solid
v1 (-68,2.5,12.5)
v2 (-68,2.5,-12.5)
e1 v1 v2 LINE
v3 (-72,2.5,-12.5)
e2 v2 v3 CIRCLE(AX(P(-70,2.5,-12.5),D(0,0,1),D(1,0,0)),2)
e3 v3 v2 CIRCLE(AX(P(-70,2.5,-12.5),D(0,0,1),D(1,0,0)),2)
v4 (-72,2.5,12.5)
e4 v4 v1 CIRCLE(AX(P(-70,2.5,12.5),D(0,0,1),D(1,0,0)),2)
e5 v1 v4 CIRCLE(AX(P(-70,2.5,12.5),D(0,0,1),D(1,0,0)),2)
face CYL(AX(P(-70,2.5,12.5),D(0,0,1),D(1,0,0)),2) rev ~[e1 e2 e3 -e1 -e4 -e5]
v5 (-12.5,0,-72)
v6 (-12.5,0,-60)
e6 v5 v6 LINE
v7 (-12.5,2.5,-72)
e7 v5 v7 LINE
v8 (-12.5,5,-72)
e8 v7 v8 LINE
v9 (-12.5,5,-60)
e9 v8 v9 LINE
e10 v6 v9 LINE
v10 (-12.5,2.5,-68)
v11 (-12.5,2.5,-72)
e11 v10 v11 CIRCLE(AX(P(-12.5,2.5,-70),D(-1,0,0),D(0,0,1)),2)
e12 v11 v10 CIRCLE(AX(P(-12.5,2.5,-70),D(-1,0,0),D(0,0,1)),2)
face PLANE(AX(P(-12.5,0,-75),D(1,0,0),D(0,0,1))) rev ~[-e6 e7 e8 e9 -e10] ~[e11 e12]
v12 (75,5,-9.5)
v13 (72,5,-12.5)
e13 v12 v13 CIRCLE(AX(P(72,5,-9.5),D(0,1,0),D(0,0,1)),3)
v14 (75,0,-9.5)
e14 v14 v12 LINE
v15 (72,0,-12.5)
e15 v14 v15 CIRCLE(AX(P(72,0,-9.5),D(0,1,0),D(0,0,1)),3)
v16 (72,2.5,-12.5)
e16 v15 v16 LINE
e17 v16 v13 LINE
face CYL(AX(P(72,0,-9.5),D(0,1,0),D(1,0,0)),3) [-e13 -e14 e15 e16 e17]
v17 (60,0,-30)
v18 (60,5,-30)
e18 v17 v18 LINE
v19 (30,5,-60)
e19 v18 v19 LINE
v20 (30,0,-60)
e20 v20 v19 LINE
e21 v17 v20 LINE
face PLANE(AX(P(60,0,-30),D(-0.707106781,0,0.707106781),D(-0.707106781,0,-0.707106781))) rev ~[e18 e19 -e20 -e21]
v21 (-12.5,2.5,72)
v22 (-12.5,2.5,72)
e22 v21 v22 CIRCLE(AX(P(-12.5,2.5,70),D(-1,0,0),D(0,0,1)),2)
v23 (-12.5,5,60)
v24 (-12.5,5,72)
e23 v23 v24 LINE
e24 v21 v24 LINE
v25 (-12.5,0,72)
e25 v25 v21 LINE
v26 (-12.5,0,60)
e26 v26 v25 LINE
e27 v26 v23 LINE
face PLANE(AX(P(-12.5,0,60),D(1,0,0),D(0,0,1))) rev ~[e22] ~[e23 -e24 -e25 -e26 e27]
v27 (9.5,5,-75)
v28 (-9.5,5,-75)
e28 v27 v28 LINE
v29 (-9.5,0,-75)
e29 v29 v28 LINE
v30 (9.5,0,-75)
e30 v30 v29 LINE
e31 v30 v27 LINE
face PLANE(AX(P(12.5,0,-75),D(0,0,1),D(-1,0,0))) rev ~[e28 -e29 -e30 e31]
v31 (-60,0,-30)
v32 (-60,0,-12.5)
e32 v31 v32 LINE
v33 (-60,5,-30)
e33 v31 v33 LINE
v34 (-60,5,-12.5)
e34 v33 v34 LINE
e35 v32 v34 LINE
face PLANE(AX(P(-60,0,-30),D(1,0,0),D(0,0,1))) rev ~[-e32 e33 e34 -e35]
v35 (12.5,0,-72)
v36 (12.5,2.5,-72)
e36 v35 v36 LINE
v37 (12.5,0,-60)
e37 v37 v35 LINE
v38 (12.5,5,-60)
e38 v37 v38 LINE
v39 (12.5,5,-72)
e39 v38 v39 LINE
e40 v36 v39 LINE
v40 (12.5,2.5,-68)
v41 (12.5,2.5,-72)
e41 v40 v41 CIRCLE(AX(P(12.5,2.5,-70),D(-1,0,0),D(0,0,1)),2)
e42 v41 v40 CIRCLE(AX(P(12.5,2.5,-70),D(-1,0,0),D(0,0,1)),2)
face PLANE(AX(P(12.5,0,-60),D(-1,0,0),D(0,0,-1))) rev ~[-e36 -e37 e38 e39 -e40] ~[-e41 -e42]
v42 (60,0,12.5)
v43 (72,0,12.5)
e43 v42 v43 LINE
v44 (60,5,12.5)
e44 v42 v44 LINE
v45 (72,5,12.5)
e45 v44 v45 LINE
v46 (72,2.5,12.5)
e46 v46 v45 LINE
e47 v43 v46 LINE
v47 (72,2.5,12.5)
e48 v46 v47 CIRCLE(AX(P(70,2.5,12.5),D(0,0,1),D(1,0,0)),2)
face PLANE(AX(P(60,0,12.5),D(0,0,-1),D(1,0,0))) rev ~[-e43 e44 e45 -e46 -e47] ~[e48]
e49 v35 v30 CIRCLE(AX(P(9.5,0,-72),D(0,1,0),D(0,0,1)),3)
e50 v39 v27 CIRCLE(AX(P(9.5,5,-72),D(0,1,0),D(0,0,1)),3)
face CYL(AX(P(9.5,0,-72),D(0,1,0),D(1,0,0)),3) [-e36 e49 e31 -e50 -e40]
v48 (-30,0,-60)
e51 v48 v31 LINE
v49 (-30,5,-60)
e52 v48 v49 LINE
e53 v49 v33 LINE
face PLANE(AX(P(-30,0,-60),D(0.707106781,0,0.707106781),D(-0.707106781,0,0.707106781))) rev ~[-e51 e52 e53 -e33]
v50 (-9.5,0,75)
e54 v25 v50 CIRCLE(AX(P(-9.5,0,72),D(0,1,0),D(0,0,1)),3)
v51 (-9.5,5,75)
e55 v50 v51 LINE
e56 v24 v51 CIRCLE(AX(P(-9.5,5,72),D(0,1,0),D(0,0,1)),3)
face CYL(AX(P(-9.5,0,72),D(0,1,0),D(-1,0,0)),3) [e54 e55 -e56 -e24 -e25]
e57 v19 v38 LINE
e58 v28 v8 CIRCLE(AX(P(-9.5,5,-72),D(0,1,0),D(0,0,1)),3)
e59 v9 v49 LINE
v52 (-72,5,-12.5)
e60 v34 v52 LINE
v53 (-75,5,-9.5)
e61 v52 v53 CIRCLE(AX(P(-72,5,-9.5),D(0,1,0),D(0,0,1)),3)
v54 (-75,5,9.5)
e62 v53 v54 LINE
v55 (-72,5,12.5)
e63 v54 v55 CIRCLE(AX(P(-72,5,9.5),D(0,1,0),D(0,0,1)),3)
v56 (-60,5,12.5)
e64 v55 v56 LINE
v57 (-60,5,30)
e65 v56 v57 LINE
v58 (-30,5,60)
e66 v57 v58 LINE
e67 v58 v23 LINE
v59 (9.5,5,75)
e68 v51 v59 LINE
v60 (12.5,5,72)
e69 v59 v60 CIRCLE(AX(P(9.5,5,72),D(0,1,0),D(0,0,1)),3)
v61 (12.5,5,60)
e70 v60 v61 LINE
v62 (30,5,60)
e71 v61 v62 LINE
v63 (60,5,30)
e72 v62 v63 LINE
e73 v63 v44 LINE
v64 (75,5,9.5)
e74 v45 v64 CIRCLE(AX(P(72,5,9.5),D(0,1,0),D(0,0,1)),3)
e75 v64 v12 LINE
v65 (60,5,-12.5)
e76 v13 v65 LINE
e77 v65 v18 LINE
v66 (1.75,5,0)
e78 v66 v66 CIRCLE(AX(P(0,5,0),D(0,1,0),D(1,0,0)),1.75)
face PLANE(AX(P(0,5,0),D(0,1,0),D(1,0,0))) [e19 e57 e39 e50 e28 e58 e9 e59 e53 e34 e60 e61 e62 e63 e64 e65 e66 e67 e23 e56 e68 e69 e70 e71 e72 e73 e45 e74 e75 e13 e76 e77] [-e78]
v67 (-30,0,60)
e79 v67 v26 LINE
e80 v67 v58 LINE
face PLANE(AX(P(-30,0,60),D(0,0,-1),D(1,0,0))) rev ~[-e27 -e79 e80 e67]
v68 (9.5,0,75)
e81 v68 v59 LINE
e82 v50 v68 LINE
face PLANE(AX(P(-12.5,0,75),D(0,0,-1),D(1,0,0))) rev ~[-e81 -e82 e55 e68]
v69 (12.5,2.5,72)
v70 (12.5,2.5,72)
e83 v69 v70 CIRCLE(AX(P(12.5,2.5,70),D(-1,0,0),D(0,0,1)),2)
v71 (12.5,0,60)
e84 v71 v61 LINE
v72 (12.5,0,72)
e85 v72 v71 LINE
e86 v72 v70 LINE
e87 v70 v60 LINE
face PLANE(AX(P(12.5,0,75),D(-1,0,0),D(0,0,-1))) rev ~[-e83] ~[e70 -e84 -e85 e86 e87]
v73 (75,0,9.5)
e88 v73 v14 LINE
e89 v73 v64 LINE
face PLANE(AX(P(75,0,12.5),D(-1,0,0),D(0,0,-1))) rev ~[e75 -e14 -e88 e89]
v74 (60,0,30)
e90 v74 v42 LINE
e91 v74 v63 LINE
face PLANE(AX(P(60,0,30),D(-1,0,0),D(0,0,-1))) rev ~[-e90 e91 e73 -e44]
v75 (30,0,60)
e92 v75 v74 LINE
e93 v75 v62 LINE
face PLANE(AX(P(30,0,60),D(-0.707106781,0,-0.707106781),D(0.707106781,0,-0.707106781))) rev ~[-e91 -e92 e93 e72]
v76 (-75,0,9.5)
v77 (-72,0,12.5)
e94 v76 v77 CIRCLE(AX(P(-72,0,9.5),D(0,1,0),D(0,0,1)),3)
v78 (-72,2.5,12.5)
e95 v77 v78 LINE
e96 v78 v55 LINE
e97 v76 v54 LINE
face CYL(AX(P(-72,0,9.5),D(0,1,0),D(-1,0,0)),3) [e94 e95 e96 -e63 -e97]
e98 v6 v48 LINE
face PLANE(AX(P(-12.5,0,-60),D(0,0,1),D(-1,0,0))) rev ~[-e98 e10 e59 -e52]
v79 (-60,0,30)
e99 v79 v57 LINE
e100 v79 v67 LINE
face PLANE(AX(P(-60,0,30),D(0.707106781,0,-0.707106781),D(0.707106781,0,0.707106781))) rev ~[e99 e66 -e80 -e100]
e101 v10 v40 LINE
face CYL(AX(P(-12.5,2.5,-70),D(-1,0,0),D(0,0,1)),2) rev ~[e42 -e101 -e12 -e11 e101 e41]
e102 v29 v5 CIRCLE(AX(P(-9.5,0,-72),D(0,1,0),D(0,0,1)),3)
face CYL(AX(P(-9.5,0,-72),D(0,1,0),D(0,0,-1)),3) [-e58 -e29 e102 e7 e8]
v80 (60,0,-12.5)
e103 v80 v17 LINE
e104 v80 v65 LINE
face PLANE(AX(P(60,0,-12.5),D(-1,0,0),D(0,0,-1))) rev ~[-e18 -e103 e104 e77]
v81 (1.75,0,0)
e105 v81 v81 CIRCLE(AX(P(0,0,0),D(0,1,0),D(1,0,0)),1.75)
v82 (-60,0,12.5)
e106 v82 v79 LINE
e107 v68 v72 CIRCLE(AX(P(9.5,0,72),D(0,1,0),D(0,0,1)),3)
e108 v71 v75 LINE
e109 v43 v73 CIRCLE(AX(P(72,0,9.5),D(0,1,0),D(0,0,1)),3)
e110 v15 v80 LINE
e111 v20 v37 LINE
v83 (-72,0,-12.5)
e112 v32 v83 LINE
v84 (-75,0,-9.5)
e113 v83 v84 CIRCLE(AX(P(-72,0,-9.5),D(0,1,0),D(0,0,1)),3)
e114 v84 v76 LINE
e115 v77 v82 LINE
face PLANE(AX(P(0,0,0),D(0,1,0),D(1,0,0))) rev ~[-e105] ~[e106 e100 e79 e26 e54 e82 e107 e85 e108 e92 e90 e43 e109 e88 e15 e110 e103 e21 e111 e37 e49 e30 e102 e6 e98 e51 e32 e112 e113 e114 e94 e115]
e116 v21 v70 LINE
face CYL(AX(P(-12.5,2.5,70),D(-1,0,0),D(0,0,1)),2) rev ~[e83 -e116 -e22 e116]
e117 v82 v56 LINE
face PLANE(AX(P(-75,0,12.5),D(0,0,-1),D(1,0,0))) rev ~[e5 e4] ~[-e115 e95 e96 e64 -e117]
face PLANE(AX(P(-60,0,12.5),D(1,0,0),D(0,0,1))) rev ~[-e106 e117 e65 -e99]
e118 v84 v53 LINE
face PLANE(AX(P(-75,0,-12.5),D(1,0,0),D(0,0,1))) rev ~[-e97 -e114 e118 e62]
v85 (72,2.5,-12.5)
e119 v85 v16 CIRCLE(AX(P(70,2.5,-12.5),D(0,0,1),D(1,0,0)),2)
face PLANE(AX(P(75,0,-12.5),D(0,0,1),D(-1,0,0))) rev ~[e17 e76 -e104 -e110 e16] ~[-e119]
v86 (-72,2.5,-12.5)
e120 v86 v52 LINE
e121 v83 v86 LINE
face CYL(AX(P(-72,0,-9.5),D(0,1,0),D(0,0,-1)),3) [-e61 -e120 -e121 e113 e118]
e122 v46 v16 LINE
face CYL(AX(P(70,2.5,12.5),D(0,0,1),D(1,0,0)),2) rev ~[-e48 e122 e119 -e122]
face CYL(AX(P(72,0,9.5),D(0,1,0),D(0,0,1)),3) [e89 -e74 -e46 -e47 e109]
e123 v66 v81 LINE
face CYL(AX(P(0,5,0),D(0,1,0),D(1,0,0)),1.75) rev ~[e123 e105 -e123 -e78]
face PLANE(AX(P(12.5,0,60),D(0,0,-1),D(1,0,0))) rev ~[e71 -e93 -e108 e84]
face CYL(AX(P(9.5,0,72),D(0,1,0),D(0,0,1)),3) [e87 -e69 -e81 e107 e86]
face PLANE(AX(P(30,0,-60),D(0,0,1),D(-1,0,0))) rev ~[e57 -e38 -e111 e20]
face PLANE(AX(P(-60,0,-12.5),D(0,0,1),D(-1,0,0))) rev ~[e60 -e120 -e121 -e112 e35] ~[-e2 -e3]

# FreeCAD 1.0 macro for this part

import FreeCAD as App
import Part
import Sketcher
Q = App.Units.Quantity


def edges_at(feature, points):
    """Names of the edges that pass closest to the given points."""
    edges = feature.Shape.Edges
    near = lambda p: min(range(len(edges)), key=lambda i: edges[i].distToShape(Part.Vertex(*p))[0])
    return sorted({f"Edge{near(p) + 1}" for p in points})


def add_polygon(sketch, points):
    """Adds a closed chain of lines whose ends are joined by coincident constraints."""
    first, n = sketch.GeometryCount, len(points)
    for a, b in zip(points, points[1:] + points[:1]):
        sketch.addGeometry(Part.LineSegment(App.Vector(*a, 0), App.Vector(*b, 0)), False)
    for i in range(n):
        sketch.addConstraint(Sketcher.Constraint("Coincident", first + i, 2, first + (i + 1) % n, 1))

doc = App.newDocument("Part")
params = doc.addObject("Spreadsheet::Sheet", "Params")
for row, (alias, value) in enumerate([
    ("sketch1_width", "25 mm"),
    ("sketch1_width2", "15 mm"),
    ("sketch1_width3", "17.5 mm"),
    ("pad1_length", "5 mm"),
    ("fillet_radius", "3 mm"),
    ("sketch2_diameter", "3.5 mm"),
    ("sketch3_diameter", "4 mm"),
    ("sketch4_diameter", "4 mm"),
], start=1):
    params.set(f"A{row}", alias)
    params.set(f"B{row}", "=" + value)
    params.setAlias(f"B{row}", alias)

body = doc.addObject("PartDesign::Body", "Body")

# Sketch on XZ plane
sketch1 = body.newObject("Sketcher::SketchObject", "Sketch")
sketch1.AttachmentSupport = (doc.getObject("XZ_Plane"), [""])
sketch1.MapMode = "FlatFace"
add_polygon(sketch1, [(-60, 30), (-30, 60), (-12, 60), (-12, 75), (12, 75), (12, 60), (30, 60), (60, 30), (60, 12), (75, 12), (75, -12), (60, -12), (60, -30), (30, -60), (12, -60), (12, -75), (-12, -75), (-12, -60), (-30, -60), (-60, -30), (-60, -12), (-75, -12), (-75, 12), (-60, 12)])  # lines 0-23
sketch1.addConstraint(Sketcher.Constraint("Horizontal", 1))
sketch1.addConstraint(Sketcher.Constraint("Vertical", 2))
sketch1.addConstraint(Sketcher.Constraint("Horizontal", 3))
sketch1.addConstraint(Sketcher.Constraint("Vertical", 4))
sketch1.addConstraint(Sketcher.Constraint("Horizontal", 5))
sketch1.addConstraint(Sketcher.Constraint("Vertical", 7))
sketch1.addConstraint(Sketcher.Constraint("Horizontal", 8))
sketch1.addConstraint(Sketcher.Constraint("Vertical", 9))
sketch1.addConstraint(Sketcher.Constraint("Horizontal", 10))
sketch1.addConstraint(Sketcher.Constraint("Vertical", 11))
sketch1.addConstraint(Sketcher.Constraint("Horizontal", 13))
sketch1.addConstraint(Sketcher.Constraint("Vertical", 14))
sketch1.addConstraint(Sketcher.Constraint("Horizontal", 15))
sketch1.addConstraint(Sketcher.Constraint("Vertical", 16))
sketch1.addConstraint(Sketcher.Constraint("Horizontal", 17))
sketch1.addConstraint(Sketcher.Constraint("Vertical", 19))
sketch1.addConstraint(Sketcher.Constraint("Horizontal", 20))
sketch1.addConstraint(Sketcher.Constraint("Vertical", 21))
sketch1.addConstraint(Sketcher.Constraint("Horizontal", 22))
sketch1.addConstraint(Sketcher.Constraint("Vertical", 23))
sketch1.addConstraint(Sketcher.Constraint("Symmetric", 0, 2, 12, 2, -1, 1))
sketch1.addConstraint(Sketcher.Constraint("Symmetric", 2, 2, 14, 2, -1, 1))
sketch1.addConstraint(Sketcher.Constraint("Symmetric", 4, 2, 16, 2, -1, 1))
sketch1.addConstraint(Sketcher.Constraint("Symmetric", 6, 2, 18, 2, -1, 1))
sketch1.addConstraint(Sketcher.Constraint("Symmetric", 8, 2, 20, 2, -1, 1))
sketch1.addConstraint(Sketcher.Constraint("Symmetric", 10, 2, 22, 2, -1, 1))
sketch1.addConstraint(Sketcher.Constraint("Symmetric", 1, 2, 4, 2, -2))
sketch1.addConstraint(Sketcher.Constraint("Symmetric", 11, 2, 18, 2, -2))
sketch1.addConstraint(Sketcher.Constraint("Perpendicular", 0, 6))
sketch1.addConstraint(Sketcher.Constraint("Perpendicular", 6, 12))
sketch1.addConstraint(Sketcher.Constraint("Perpendicular", 12, 18))
sketch1.addConstraint(Sketcher.Constraint("Horizontal", 10, 2, 19, 2))
sketch1.addConstraint(Sketcher.Constraint("Vertical", 5, 2, 12, 2))
sketch1.addConstraint(Sketcher.Constraint("Equal", 22, 2))
sketch1.addConstraint(Sketcher.Constraint("Equal", 17, 7))
sketch1.addConstraint(Sketcher.Constraint("Equal", 15, 9))
sketch1.addConstraint(Sketcher.Constraint("DistanceX", 3, 1, 3, 2, Q("25 mm")))
sketch1.addConstraint(Sketcher.Constraint("DistanceX", 8, 1, 8, 2, Q("15 mm")))
sketch1.addConstraint(Sketcher.Constraint("DistanceX", 1, 1, 1, 2, Q("17.5 mm")))
sketch1.addConstraint(Sketcher.Constraint("DistanceY", -1, 1, 0, 2, Q("60 mm")))
sketch1.setExpression("Constraints[60]", "Params.sketch1_width")
sketch1.setExpression("Constraints[61]", "Params.sketch1_width2")
sketch1.setExpression("Constraints[62]", "Params.sketch1_width3")
pad1 = body.newObject("PartDesign::Pad", "Pad")
pad1.Profile = sketch1
pad1.setExpression("Length", "Params.pad1_length")
pad1.Reversed = True
doc.recompute()

fillet = body.newObject("PartDesign::Fillet", "Fillet")
fillet.Base = (pad1, edges_at(pad1, [
    (-12.5, 2.5, -75),
    (12.5, 2.5, -75),
    (75, 2.5, -12.5),
    (75, 2.5, 12.5),
    (12.5, 2.5, 75),
    (-12.5, 2.5, 75),
    (-75, 2.5, 12.5),
    (-75, 2.5, -12.5),
]))
fillet.setExpression("Radius", "Params.fillet_radius")

# Sketch on XZ plane
sketch2 = body.newObject("Sketcher::SketchObject", "Sketch001")
sketch2.AttachmentSupport = (doc.getObject("XZ_Plane"), [""])
sketch2.MapMode = "FlatFace"
sketch2.AttachmentOffset = App.Placement(App.Vector(0, 0, -5), App.Rotation())
sketch2.addGeometry(Part.Circle(App.Vector(0, 0, 0), App.Vector(0, 0, 1), 1.8), False)
sketch2.addConstraint(Sketcher.Constraint("Coincident", 0, 3, -1, 1))
sketch2.addConstraint(Sketcher.Constraint("Diameter", 0, Q("3.5 mm")))
sketch2.setExpression("Constraints[1]", "Params.sketch2_diameter")
pocket1 = body.newObject("PartDesign::Pocket", "Pocket")
pocket1.Profile = sketch2
pocket1.Type = "ThroughAll"
pocket1.Reversed = True

# Sketch on XY plane
sketch3 = body.newObject("Sketcher::SketchObject", "Sketch002")
sketch3.AttachmentSupport = (doc.getObject("XY_Plane"), [""])
sketch3.MapMode = "FlatFace"
sketch3.AttachmentOffset = App.Placement(App.Vector(0, 0, 12.5), App.Rotation())
sketch3.addGeometry(Part.Circle(App.Vector(-70, 2.5, 0), App.Vector(0, 0, 1), 2), False)
sketch3.addGeometry(Part.Circle(App.Vector(70, 2.5, 0), App.Vector(0, 0, 1), 2), False)
sketch3.addConstraint(Sketcher.Constraint("Equal", 0, 1))
sketch3.addConstraint(Sketcher.Constraint("Symmetric", 0, 3, 1, 3, -2))
sketch3.addConstraint(Sketcher.Constraint("Diameter", 0, Q("4 mm")))
sketch3.addConstraint(Sketcher.Constraint("DistanceX", 0, 3, -1, 1, Q("70 mm")))
sketch3.addConstraint(Sketcher.Constraint("DistanceY", -1, 1, 0, 3, Q("2.5 mm")))
sketch3.setExpression("Constraints[2]", "Params.sketch3_diameter")
pocket2 = body.newObject("PartDesign::Pocket", "Pocket001")
pocket2.Profile = sketch3
pocket2.Type = "ThroughAll"

# Sketch on YZ plane
sketch4 = body.newObject("Sketcher::SketchObject", "Sketch003")
sketch4.AttachmentSupport = (doc.getObject("YZ_Plane"), [""])
sketch4.MapMode = "FlatFace"
sketch4.AttachmentOffset = App.Placement(App.Vector(0, 0, -12.5), App.Rotation())
sketch4.addGeometry(Part.Circle(App.Vector(2.5, -70, 0), App.Vector(0, 0, 1), 2), False)
sketch4.addGeometry(Part.Circle(App.Vector(2.5, 70, 0), App.Vector(0, 0, 1), 2), False)
sketch4.addConstraint(Sketcher.Constraint("Equal", 0, 1))
sketch4.addConstraint(Sketcher.Constraint("Symmetric", 0, 3, 1, 3, -1))
sketch4.addConstraint(Sketcher.Constraint("Diameter", 0, Q("4 mm")))
sketch4.addConstraint(Sketcher.Constraint("DistanceY", 0, 3, -1, 1, Q("70 mm")))
sketch4.addConstraint(Sketcher.Constraint("DistanceX", -1, 1, 0, 3, Q("2.5 mm")))
sketch4.setExpression("Constraints[2]", "Params.sketch4_diameter")
pocket3 = body.newObject("PartDesign::Pocket", "Pocket002")
pocket3.Profile = sketch4
pocket3.Type = "ThroughAll"
pocket3.Reversed = True

doc.recompute()
